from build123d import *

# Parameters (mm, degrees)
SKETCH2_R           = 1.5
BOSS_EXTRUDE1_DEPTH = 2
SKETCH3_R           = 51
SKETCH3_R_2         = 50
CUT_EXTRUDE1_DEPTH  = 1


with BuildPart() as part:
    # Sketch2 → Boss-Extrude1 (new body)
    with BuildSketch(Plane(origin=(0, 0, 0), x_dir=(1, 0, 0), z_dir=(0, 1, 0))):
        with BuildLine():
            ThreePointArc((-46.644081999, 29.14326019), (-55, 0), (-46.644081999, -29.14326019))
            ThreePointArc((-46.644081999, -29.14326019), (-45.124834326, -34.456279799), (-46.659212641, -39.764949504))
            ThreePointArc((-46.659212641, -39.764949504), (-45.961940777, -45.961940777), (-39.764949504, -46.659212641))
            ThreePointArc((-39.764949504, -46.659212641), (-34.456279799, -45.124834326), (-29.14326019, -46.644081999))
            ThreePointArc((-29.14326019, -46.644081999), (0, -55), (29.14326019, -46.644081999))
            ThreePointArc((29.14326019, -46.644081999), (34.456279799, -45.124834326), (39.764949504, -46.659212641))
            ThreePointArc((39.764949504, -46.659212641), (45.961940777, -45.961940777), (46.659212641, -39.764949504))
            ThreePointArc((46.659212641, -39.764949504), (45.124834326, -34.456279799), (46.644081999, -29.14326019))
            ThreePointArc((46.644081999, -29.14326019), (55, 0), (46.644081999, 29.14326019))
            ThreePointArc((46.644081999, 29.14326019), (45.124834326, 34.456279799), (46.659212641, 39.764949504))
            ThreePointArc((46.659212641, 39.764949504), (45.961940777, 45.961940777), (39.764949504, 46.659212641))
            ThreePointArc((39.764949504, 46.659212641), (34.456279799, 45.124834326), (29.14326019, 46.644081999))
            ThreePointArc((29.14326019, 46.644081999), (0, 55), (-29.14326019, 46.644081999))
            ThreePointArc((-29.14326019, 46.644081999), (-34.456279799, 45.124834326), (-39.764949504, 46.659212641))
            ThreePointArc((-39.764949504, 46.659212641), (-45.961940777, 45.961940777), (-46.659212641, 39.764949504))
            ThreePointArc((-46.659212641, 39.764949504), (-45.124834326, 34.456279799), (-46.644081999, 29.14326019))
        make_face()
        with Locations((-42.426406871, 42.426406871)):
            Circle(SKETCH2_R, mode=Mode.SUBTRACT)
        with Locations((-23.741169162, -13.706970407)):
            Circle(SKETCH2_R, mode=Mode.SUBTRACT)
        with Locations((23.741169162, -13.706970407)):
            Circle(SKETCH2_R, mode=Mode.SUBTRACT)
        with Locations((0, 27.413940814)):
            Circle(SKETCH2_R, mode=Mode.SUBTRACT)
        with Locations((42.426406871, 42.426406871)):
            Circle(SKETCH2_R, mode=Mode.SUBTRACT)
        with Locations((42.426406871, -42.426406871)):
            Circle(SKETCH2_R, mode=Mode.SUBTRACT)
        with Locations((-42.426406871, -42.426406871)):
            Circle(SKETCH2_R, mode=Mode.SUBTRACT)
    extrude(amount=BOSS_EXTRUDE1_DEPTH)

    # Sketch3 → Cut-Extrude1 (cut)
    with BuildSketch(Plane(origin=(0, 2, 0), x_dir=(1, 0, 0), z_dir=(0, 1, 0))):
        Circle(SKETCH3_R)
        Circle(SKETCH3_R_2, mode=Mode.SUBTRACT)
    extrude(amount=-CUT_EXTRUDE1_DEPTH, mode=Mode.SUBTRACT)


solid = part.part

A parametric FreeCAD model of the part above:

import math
import FreeCAD as App
import Part
import Sketcher

V = App.Vector
Q = App.Units.Quantity

doc = App.newDocument("Part")
body = doc.addObject("PartDesign::Body", "Body")

# Sketch on XZ plane
sketch1 = body.newObject("Sketcher::SketchObject", "Sketch")
sketch1.AttachmentSupport = (doc.getObject("XZ_Plane"), [""])
sketch1.MapMode = "FlatFace"
sketch1.addGeometry(Part.ArcOfCircle(Part.Circle(V(0, 0, 0), V(0, 0, 1), 55), math.radians(148), math.radians(212)), False)
sketch1.addGeometry(Part.ArcOfCircle(Part.Circle(V(-55.1, 34.4, 0), V(0, 0, 1), 10), math.radians(-32), math.radians(32)), False)
sketch1.addGeometry(Part.ArcOfCircle(Part.Circle(V(-42.4, 42.4, 0), V(0, 0, 1), 5), math.radians(58), math.radians(212)), False)
sketch1.addGeometry(Part.ArcOfCircle(Part.Circle(V(-34.4, 55.1, 0), V(0, 0, 1), 10), math.radians(-122), math.radians(-58)), False)
sketch1.addGeometry(Part.ArcOfCircle(Part.Circle(V(0, 0, 0), V(0, 0, 1), 55), math.radians(58), math.radians(122)), False)
sketch1.addGeometry(Part.ArcOfCircle(Part.Circle(V(34.4, 55.1, 0), V(0, 0, 1), 10), math.radians(-122), math.radians(-58)), False)
sketch1.addGeometry(Part.ArcOfCircle(Part.Circle(V(42.4, 42.4, 0), V(0, 0, 1), 5), math.radians(-32), math.radians(122)), False)
sketch1.addGeometry(Part.ArcOfCircle(Part.Circle(V(55.1, 34.4, 0), V(0, 0, 1), 10), math.radians(148), math.radians(212)), False)
sketch1.addGeometry(Part.ArcOfCircle(Part.Circle(V(0, 0, 0), V(0, 0, 1), 55), math.radians(-32), math.radians(32)), False)
sketch1.addGeometry(Part.ArcOfCircle(Part.Circle(V(55.1, -34.4, 0), V(0, 0, 1), 10), math.radians(148), math.radians(212)), False)
sketch1.addGeometry(Part.ArcOfCircle(Part.Circle(V(42.4, -42.4, 0), V(0, 0, 1), 5), math.radians(-122), math.radians(32)), False)
sketch1.addGeometry(Part.ArcOfCircle(Part.Circle(V(34.4, -55.1, 0), V(0, 0, 1), 10), math.radians(58), math.radians(122)), False)
sketch1.addGeometry(Part.ArcOfCircle(Part.Circle(V(0, 0, 0), V(0, 0, 1), 55), math.radians(-122), math.radians(-58)), False)
sketch1.addGeometry(Part.ArcOfCircle(Part.Circle(V(-34.4, -55.1, 0), V(0, 0, 1), 10), math.radians(58), math.radians(122)), False)
sketch1.addGeometry(Part.ArcOfCircle(Part.Circle(V(-42.4, -42.4, 0), V(0, 0, 1), 5), math.radians(148), math.radians(302)), False)
sketch1.addGeometry(Part.ArcOfCircle(Part.Circle(V(-55.1, -34.4, 0), V(0, 0, 1), 10), math.radians(-32), math.radians(32)), False)
sketch1.addGeometry(Part.Circle(V(-42.4, 42.4, 0), V(0, 0, 1), 1.5), False)
sketch1.addGeometry(Part.Circle(V(-23.7, 13.7, 0), V(0, 0, 1), 1.5), False)
sketch1.addGeometry(Part.Circle(V(42.4, 42.4, 0), V(0, 0, 1), 1.5), False)
sketch1.addGeometry(Part.Circle(V(23.7, 13.7, 0), V(0, 0, 1), 1.5), False)
sketch1.addGeometry(Part.Circle(V(-42.4, -42.4, 0), V(0, 0, 1), 1.5), False)
sketch1.addGeometry(Part.Circle(V(0, -27.4, 0), V(0, 0, 1), 1.5), False)
sketch1.addGeometry(Part.Circle(V(42.4, -42.4, 0), V(0, 0, 1), 1.5), False)
sketch1.addConstraint(Sketcher.Constraint("Tangent", 0, 1, 1, 1))
sketch1.addConstraint(Sketcher.Constraint("Tangent", 1, 2, 2, 2))
sketch1.addConstraint(Sketcher.Constraint("Tangent", 2, 1, 3, 1))
sketch1.addConstraint(Sketcher.Constraint("Tangent", 3, 2, 4, 2))
sketch1.addConstraint(Sketcher.Constraint("Tangent", 4, 1, 5, 1))
sketch1.addConstraint(Sketcher.Constraint("Tangent", 5, 2, 6, 2))
sketch1.addConstraint(Sketcher.Constraint("Tangent", 6, 1, 7, 1))
sketch1.addConstraint(Sketcher.Constraint("Tangent", 7, 2, 8, 2))
sketch1.addConstraint(Sketcher.Constraint("Tangent", 8, 1, 9, 1))
sketch1.addConstraint(Sketcher.Constraint("Tangent", 9, 2, 10, 2))
sketch1.addConstraint(Sketcher.Constraint("Tangent", 10, 1, 11, 1))
sketch1.addConstraint(Sketcher.Constraint("Tangent", 11, 2, 12, 2))
sketch1.addConstraint(Sketcher.Constraint("Tangent", 12, 1, 13, 1))
sketch1.addConstraint(Sketcher.Constraint("Tangent", 13, 2, 14, 2))
sketch1.addConstraint(Sketcher.Constraint("Tangent", 14, 1, 15, 1))
sketch1.addConstraint(Sketcher.Constraint("Tangent", 15, 2, 0, 2))
sketch1.addConstraint(Sketcher.Constraint("Coincident", 0, 3, -1, 1))
sketch1.addConstraint(Sketcher.Constraint("Coincident", 4, 3, -1, 1))
sketch1.addConstraint(Sketcher.Constraint("Coincident", 8, 3, -1, 1))
sketch1.addConstraint(Sketcher.Constraint("Coincident", 12, 3, -1, 1))
sketch1.addConstraint(Sketcher.Constraint("Coincident", 16, 3, 2, 3))
sketch1.addConstraint(Sketcher.Constraint("Coincident", 18, 3, 6, 3))
sketch1.addConstraint(Sketcher.Constraint("Coincident", 20, 3, 14, 3))
sketch1.addConstraint(Sketcher.Constraint("Coincident", 22, 3, 10, 3))
sketch1.addConstraint(Sketcher.Constraint("Equal", 1, 3))
sketch1.addConstraint(Sketcher.Constraint("Equal", 0, 4))
sketch1.addConstraint(Sketcher.Constraint("Equal", 3, 5))
sketch1.addConstraint(Sketcher.Constraint("Equal", 2, 6))
sketch1.addConstraint(Sketcher.Constraint("Equal", 5, 7))
sketch1.addConstraint(Sketcher.Constraint("Equal", 4, 8))
sketch1.addConstraint(Sketcher.Constraint("Equal", 7, 9))
sketch1.addConstraint(Sketcher.Constraint("Equal", 6, 10))
sketch1.addConstraint(Sketcher.Constraint("Equal", 9, 11))
sketch1.addConstraint(Sketcher.Constraint("Equal", 8, 12))
sketch1.addConstraint(Sketcher.Constraint("Equal", 11, 13))
sketch1.addConstraint(Sketcher.Constraint("Equal", 10, 14))
sketch1.addConstraint(Sketcher.Constraint("Equal", 13, 15))
sketch1.addConstraint(Sketcher.Constraint("Equal", 16, 17))
sketch1.addConstraint(Sketcher.Constraint("Equal", 17, 18))
sketch1.addConstraint(Sketcher.Constraint("Equal", 18, 19))
sketch1.addConstraint(Sketcher.Constraint("Equal", 19, 20))
sketch1.addConstraint(Sketcher.Constraint("Equal", 20, 21))
sketch1.addConstraint(Sketcher.Constraint("Equal", 21, 22))
sketch1.addConstraint(Sketcher.Constraint("Symmetric", 2, 3, 10, 3, -1, 1))
sketch1.addConstraint(Sketcher.Constraint("Symmetric", 6, 3, 14, 3, -1, 1))
sketch1.addConstraint(Sketcher.Constraint("Symmetric", 2, 3, 6, 3, -2))
sketch1.addConstraint(Sketcher.Constraint("Symmetric", 17, 3, 19, 3, -2))
sketch1.addConstraint(Sketcher.Constraint("PointOnObject", 21, 3, -2))
sketch1.addConstraint(Sketcher.Constraint("Diameter", 16, Q("3 mm")))
sketch1.addConstraint(Sketcher.Constraint("Radius", 0, Q("55 mm")))
sketch1.addConstraint(Sketcher.Constraint("Radius", 1, Q("10 mm")))
sketch1.addConstraint(Sketcher.Constraint("Radius", 2, Q("5 mm")))
sketch1.addConstraint(Sketcher.Constraint("DistanceX", 17, 3, -1, 1, Q("23.741169 mm")))
sketch1.addConstraint(Sketcher.Constraint("DistanceY", -1, 1, 17, 3, Q("13.70697 mm")))
sketch1.addConstraint(Sketcher.Constraint("DistanceY", 21, 3, -1, 1, Q("27.413941 mm")))
sketch1.addConstraint(Sketcher.Constraint("DistanceX", 0, 1, -1, 1, Q("46.644082 mm")))
sketch1.addConstraint(Sketcher.Constraint("DistanceY", -1, 1, 1, 2, Q("39.76495 mm")))
pad1 = body.newObject("PartDesign::Pad", "Pad")
pad1.Profile = sketch1
pad1.Length = 2
pad1.Reversed = True

# Sketch on XZ plane
sketch2 = body.newObject("Sketcher::SketchObject", "Sketch001")
sketch2.AttachmentSupport = (doc.getObject("XZ_Plane"), [""])
sketch2.MapMode = "FlatFace"
sketch2.AttachmentOffset = App.Placement(V(0, 0, -2), App.Rotation())
sketch2.addGeometry(Part.Circle(V(0, 0, 0), V(0, 0, 1), 51), False)
sketch2.addGeometry(Part.Circle(V(0, 0, 0), V(0, 0, 1), 50), False)
sketch2.addConstraint(Sketcher.Constraint("Coincident", 0, 3, -1, 1))
sketch2.addConstraint(Sketcher.Constraint("Coincident", 1, 3, -1, 1))
sketch2.addConstraint(Sketcher.Constraint("Diameter", 0, Q("102 mm")))
sketch2.addConstraint(Sketcher.Constraint("Diameter", 1, Q("100 mm")))
pocket1 = body.newObject("PartDesign::Pocket", "Pocket")
pocket1.Profile = sketch2
pocket1.Length = 1
pocket1.Reversed = True

doc.recompute()
